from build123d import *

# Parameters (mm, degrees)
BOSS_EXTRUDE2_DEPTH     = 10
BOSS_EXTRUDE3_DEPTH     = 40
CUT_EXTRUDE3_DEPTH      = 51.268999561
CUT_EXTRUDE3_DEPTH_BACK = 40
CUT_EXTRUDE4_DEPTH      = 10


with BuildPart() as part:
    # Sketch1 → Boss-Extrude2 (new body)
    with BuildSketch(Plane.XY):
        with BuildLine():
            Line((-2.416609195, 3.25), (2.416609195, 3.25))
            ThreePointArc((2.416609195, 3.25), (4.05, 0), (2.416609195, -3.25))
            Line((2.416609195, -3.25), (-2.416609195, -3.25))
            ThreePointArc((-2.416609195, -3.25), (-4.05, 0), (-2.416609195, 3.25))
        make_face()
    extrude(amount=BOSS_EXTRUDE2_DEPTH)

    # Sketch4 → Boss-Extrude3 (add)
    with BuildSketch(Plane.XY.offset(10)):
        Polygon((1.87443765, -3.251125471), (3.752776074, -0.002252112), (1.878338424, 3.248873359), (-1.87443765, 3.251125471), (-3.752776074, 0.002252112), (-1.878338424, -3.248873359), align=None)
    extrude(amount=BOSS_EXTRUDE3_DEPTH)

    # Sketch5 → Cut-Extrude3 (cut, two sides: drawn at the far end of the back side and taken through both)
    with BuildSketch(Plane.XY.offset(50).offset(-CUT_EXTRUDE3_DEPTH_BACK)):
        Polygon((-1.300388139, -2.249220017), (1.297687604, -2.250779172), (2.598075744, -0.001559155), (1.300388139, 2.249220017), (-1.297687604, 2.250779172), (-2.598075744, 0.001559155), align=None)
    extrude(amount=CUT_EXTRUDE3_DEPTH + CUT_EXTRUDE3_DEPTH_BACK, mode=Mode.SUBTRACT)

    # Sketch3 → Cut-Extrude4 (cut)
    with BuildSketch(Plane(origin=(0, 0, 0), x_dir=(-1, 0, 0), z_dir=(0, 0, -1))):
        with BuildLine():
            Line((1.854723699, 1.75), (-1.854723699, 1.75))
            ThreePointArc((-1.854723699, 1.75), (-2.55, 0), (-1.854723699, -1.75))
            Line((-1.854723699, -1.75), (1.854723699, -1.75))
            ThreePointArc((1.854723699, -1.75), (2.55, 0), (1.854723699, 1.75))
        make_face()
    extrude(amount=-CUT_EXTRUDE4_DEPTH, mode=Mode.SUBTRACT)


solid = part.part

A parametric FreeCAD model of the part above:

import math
import FreeCAD as App
import Part
import Sketcher

V = App.Vector


def add_polygon(sketch, points):
    """Adds a closed chain of lines whose ends are joined by coincident constraints."""
    first, n = sketch.GeometryCount, len(points)
    for a, b in zip(points, points[1:] + points[:1]):
        sketch.addGeometry(Part.LineSegment(App.Vector(*a, 0), App.Vector(*b, 0)), False)
    for i in range(n):
        sketch.addConstraint(Sketcher.Constraint("Coincident", first + i, 2, first + (i + 1) % n, 1))

doc = App.newDocument("Part")
params = doc.addObject("Spreadsheet::Sheet", "Params")
for row, (alias, value) in enumerate([
    ("sketch1_radius", "4.05 mm"),
    ("pad1_length", "10 mm"),
    ("pad2_length", "40 mm"),
    ("pocket1_length", "51.269 mm"),
    ("pocket1_length2", "40 mm"),
    ("sketch4_radius", "2.55 mm"),
    ("pocket2_length", "10 mm"),
], start=1):
    params.set(f"A{row}", alias)
    params.set(f"B{row}", "=" + value)
    params.setAlias(f"B{row}", alias)

body = doc.addObject("PartDesign::Body", "Body")

sketch1 = doc.addObject("Sketcher::SketchObject", "Sketch")
body.addObject(sketch1)
sketch1.AttachmentSupport = (doc.XY_Plane, [""])
sketch1.MapMode = "FlatFace"
sketch1.addGeometry([
    Part.LineSegment(V(2.416609, 3.25, 0), V(-2.416609, 3.25, 0)),
    Part.ArcOfCircle(Part.Circle(V(0, 0, 0), V(0, 0, 1), 4.05), math.radians(126.633461), math.radians(233.366539)),
    Part.LineSegment(V(-2.416609, -3.25, 0), V(2.416609, -3.25, 0)),
    Part.ArcOfCircle(Part.Circle(V(0, 0, 0), V(0, 0, 1), 4.05), math.radians(-53.366539), math.radians(53.366539)),
], False)
sketch1.addConstraint([
    Sketcher.Constraint("Coincident", 0, 2, 1, 1),
    Sketcher.Constraint("Coincident", 1, 2, 2, 1),
    Sketcher.Constraint("Coincident", 2, 2, 3, 1),
    Sketcher.Constraint("Coincident", 3, 2, 0, 1),
    Sketcher.Constraint("Horizontal", 0),
    Sketcher.Constraint("Horizontal", 2),
    Sketcher.Constraint("Coincident", 1, 3, -1, 1),
    Sketcher.Constraint("Coincident", 3, 3, -1, 1),
    Sketcher.Constraint("Equal", 1, 3),
    Sketcher.Constraint("Vertical", 0, 2, 1, 2),
    Sketcher.Constraint("Radius", 1, 4.05),
    Sketcher.Constraint("DistanceY", 1, 2, 0, 2, 6.5),
])
sketch1.setExpression("Constraints[10]", "Params.sketch1_radius")
pad1 = doc.addObject("PartDesign::Pad", "Pad")
body.addObject(pad1)
pad1.Profile = sketch1
pad1.setExpression("Length", "Params.pad1_length")

sketch2 = doc.addObject("Sketcher::SketchObject", "Sketch001")
body.addObject(sketch2)
sketch2.AttachmentSupport = (doc.XY_Plane, [""])
sketch2.MapMode = "FlatFace"
sketch2.AttachmentOffset = App.Placement(V(0, 0, 10), App.Rotation())
add_polygon(sketch2, [(1.874438, -3.251125), (3.752776, -0.002252), (1.878338, 3.248873), (-1.874438, 3.251125), (-3.752776, 0.002252), (-1.878338, -3.248873)])
sketch2.addConstraint([
    Sketcher.Constraint("Symmetric", 0, 2, 3, 2, -1, 1),
    Sketcher.Constraint("Symmetric", 1, 2, 4, 2, -1, 1),
    Sketcher.Constraint("Symmetric", 2, 2, 5, 2, -1, 1),
    Sketcher.Constraint("Equal", 0, 1),
    Sketcher.Constraint("Equal", 1, 2),
    Sketcher.Constraint("DistanceY", 4, 2, 2, 2, 6.499999),
    Sketcher.Constraint("DistanceX", 4, 2, 2, 2, 0.003901),
    Sketcher.Constraint("DistanceX", -1, 1, 1, 2, 1.878338),
    Sketcher.Constraint("DistanceY", 3, 2, 1, 2, 3.246621),
])
pad2 = doc.addObject("PartDesign::Pad", "Pad001")
body.addObject(pad2)
pad2.Profile = sketch2
pad2.setExpression("Length", "Params.pad2_length")

sketch3 = doc.addObject("Sketcher::SketchObject", "Sketch002")
body.addObject(sketch3)
sketch3.AttachmentSupport = (doc.XY_Plane, [""])
sketch3.MapMode = "FlatFace"
sketch3.AttachmentOffset = App.Placement(V(0, 0, 50), App.Rotation())
add_polygon(sketch3, [(-1.300388, -2.24922), (1.297688, -2.250779), (2.598076, -0.001559), (1.300388, 2.24922), (-1.297688, 2.250779), (-2.598076, 0.001559)])
sketch3.addConstraint([
    Sketcher.Constraint("Symmetric", 0, 2, 3, 2, -1, 1),
    Sketcher.Constraint("Symmetric", 1, 2, 4, 2, -1, 1),
    Sketcher.Constraint("Symmetric", 2, 2, 5, 2, -1, 1),
    Sketcher.Constraint("Equal", 0, 1),
    Sketcher.Constraint("Equal", 1, 2),
    Sketcher.Constraint("DistanceY", 0, 2, 2, 2, 4.499999),
    Sketcher.Constraint("DistanceX", 0, 2, 2, 2, 0.002701),
    Sketcher.Constraint("DistanceY", 0, 2, -1, 1, 2.250779),
    Sketcher.Constraint("DistanceX", -1, 1, 2, 2, 1.300388),
])
pocket1 = doc.addObject("PartDesign::Pocket", "Pocket")
body.addObject(pocket1)
pocket1.Profile = sketch3
pocket1.Type = "TwoLengths"
pocket1.setExpression("Length", "Params.pocket1_length")
pocket1.setExpression("Length2", "Params.pocket1_length2")
pocket1.Reversed = True

sketch4 = doc.addObject("Sketcher::SketchObject", "Sketch003")
body.addObject(sketch4)
sketch4.AttachmentSupport = (doc.XY_Plane, [""])
sketch4.MapMode = "FlatFace"
sketch4.addGeometry([
    Part.LineSegment(V(-1.854724, 1.75, 0), V(1.854724, 1.75, 0)),
    Part.ArcOfCircle(Part.Circle(V(0, 0, 0), V(0, 0, 1), 2.55), math.radians(-43.335923), math.radians(43.335923)),
    Part.LineSegment(V(1.854724, -1.75, 0), V(-1.854724, -1.75, 0)),
    Part.ArcOfCircle(Part.Circle(V(0, 0, 0), V(0, 0, 1), 2.55), math.radians(136.664077), math.radians(223.335923)),
], False)
sketch4.addConstraint([
    Sketcher.Constraint("Coincident", 0, 2, 1, 2),
    Sketcher.Constraint("Coincident", 1, 1, 2, 1),
    Sketcher.Constraint("Coincident", 2, 2, 3, 2),
    Sketcher.Constraint("Coincident", 3, 1, 0, 1),
    Sketcher.Constraint("Horizontal", 0),
    Sketcher.Constraint("Horizontal", 2),
    Sketcher.Constraint("Coincident", 1, 3, -1, 1),
    Sketcher.Constraint("Coincident", 3, 3, -1, 1),
    Sketcher.Constraint("Equal", 1, 3),
    Sketcher.Constraint("Vertical", 0, 2, 1, 1),
    Sketcher.Constraint("Radius", 1, 2.55),
    Sketcher.Constraint("DistanceY", 1, 1, 0, 2, 3.5),
])
sketch4.setExpression("Constraints[10]", "Params.sketch4_radius")
pocket2 = doc.addObject("PartDesign::Pocket", "Pocket001")
body.addObject(pocket2)
pocket2.Profile = sketch4
pocket2.setExpression("Length", "Params.pocket2_length")
pocket2.Reversed = True

doc.recompute()
